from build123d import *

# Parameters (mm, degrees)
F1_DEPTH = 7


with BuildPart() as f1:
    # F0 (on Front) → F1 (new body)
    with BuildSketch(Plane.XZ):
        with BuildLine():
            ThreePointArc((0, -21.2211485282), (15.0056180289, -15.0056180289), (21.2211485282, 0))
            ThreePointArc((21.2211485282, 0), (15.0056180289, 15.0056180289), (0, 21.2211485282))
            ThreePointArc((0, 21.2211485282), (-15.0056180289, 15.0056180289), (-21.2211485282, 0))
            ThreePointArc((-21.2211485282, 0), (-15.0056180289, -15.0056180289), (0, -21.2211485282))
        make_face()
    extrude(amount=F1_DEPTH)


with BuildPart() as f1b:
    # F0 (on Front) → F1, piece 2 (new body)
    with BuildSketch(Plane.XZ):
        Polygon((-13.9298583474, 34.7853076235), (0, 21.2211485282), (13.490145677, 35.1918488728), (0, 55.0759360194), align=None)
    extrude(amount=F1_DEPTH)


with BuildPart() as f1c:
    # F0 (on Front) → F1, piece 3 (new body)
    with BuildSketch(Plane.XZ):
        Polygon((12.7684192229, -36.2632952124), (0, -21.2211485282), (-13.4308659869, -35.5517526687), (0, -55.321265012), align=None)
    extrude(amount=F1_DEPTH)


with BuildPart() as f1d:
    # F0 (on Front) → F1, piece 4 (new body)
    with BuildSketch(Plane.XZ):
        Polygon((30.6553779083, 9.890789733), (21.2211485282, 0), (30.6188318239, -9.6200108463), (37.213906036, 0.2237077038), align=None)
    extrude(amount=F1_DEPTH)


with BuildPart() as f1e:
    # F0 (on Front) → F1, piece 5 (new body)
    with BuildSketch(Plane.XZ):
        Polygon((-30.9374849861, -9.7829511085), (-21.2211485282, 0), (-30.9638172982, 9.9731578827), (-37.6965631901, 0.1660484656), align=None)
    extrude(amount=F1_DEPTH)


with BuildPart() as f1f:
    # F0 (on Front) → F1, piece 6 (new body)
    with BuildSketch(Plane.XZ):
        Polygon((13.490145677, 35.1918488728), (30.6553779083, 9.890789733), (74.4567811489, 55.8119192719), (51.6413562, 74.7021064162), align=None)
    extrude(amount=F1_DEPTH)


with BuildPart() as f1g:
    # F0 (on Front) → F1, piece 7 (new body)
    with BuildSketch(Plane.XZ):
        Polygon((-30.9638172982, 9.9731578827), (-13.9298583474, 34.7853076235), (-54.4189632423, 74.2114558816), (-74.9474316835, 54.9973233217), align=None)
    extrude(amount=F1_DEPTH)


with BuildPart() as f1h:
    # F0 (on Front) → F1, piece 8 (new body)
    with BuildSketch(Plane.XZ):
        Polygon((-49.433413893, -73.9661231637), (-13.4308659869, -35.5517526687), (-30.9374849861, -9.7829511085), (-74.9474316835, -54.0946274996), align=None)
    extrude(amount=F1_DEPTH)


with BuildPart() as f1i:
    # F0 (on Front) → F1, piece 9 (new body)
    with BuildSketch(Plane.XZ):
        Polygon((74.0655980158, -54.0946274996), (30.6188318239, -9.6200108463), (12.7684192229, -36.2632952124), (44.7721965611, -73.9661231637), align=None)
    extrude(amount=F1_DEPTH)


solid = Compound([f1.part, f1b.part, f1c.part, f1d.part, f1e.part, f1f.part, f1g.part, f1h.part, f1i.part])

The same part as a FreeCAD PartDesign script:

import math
import FreeCAD as App
import Part
import Sketcher

doc = App.newDocument("Part")
body = doc.addObject("PartDesign::Body", "Body")

sketch1 = doc.addObject("Sketcher::SketchObject", "Sketch")
body.addObject(sketch1)
sketch1.AttachmentSupport = (doc.XZ_Plane, [""])
sketch1.MapMode = "FlatFace"
sketch1.addGeometry(Part.ArcOfCircle(Part.Circle(App.Vector(0, 0, 0), App.Vector(0, 0, 1), 21), math.radians(-90), math.radians(0)), False)
sketch1.addGeometry(Part.ArcOfCircle(Part.Circle(App.Vector(0, 0, 0), App.Vector(0, 0, 1), 21), math.radians(0), math.radians(90)), False)
sketch1.addGeometry(Part.ArcOfCircle(Part.Circle(App.Vector(0, 0, 0), App.Vector(0, 0, 1), 21), math.radians(90), math.radians(180)), False)
sketch1.addGeometry(Part.ArcOfCircle(Part.Circle(App.Vector(0, 0, 0), App.Vector(0, 0, 1), 21), math.radians(180), math.radians(270)), False)
sketch1.addConstraint(Sketcher.Constraint("Tangent", 0, 2, 1, 1))
sketch1.addConstraint(Sketcher.Constraint("Tangent", 1, 2, 2, 1))
sketch1.addConstraint(Sketcher.Constraint("Tangent", 2, 2, 3, 1))
sketch1.addConstraint(Sketcher.Constraint("Tangent", 3, 2, 0, 1))
sketch1.addConstraint(Sketcher.Constraint("Coincident", 0, 3, -1, 1))
sketch1.addConstraint(Sketcher.Constraint("Equal", 0, 1))
sketch1.addConstraint(Sketcher.Constraint("PointOnObject", 0, 2, -1))
sketch1.addConstraint(Sketcher.Constraint("PointOnObject", 1, 2, -2))
sketch1.addConstraint(Sketcher.Constraint("PointOnObject", 2, 2, -1))
sketch1.addConstraint(Sketcher.Constraint("PointOnObject", 3, 2, -2))
sketch1.addConstraint(Sketcher.Constraint("Radius", 0, 21.221149))
pad1 = doc.addObject("PartDesign::Pad", "Pad")
body.addObject(pad1)
pad1.Profile = sketch1
pad1.Length = 7
body2 = doc.addObject("PartDesign::Body", "Body001")

sketch2 = doc.addObject("Sketcher::SketchObject", "Sketch001")
body2.addObject(sketch2)
sketch2.AttachmentSupport = (doc.getObject("XZ_Plane001"), [""])
sketch2.MapMode = "FlatFace"
sketch2.addGeometry(Part.LineSegment(App.Vector(-14, 35, 0), App.Vector(0, 21, 0)), False)
sketch2.addGeometry(Part.LineSegment(App.Vector(0, 21, 0), App.Vector(13, 35, 0)), False)
sketch2.addGeometry(Part.LineSegment(App.Vector(13, 35, 0), App.Vector(0, 55, 0)), False)
sketch2.addGeometry(Part.LineSegment(App.Vector(0, 55, 0), App.Vector(-14, 35, 0)), False)
sketch2.addConstraint(Sketcher.Constraint("Coincident", 0, 2, 1, 1))
sketch2.addConstraint(Sketcher.Constraint("Coincident", 1, 2, 2, 1))
sketch2.addConstraint(Sketcher.Constraint("Coincident", 2, 2, 3, 1))
sketch2.addConstraint(Sketcher.Constraint("Coincident", 3, 2, 0, 1))
sketch2.addConstraint(Sketcher.Constraint("PointOnObject", 0, 2, -2))
sketch2.addConstraint(Sketcher.Constraint("PointOnObject", 2, 2, -2))
sketch2.addConstraint(Sketcher.Constraint("Distance", 3, 24.612))
sketch2.addConstraint(Sketcher.Constraint("DistanceY", 0, 2, 1, 2, 13.9707))
sketch2.addConstraint(Sketcher.Constraint("DistanceY", -1, 1, 0, 2, 21.221149))
sketch2.addConstraint(Sketcher.Constraint("DistanceX", 3, 2, -1, 1, 13.929858))
sketch2.addConstraint(Sketcher.Constraint("DistanceY", 0, 2, 3, 2, 13.564159))
sketch2.addConstraint(Sketcher.Constraint("Distance", 1, 19.420723))
pad2 = doc.addObject("PartDesign::Pad", "Pad001")
body2.addObject(pad2)
pad2.Profile = sketch2
pad2.Length = 7
body3 = doc.addObject("PartDesign::Body", "Body002")

sketch3 = doc.addObject("Sketcher::SketchObject", "Sketch002")
body3.addObject(sketch3)
sketch3.AttachmentSupport = (doc.getObject("XZ_Plane002"), [""])
sketch3.MapMode = "FlatFace"
sketch3.addGeometry(Part.LineSegment(App.Vector(13, -36, 0), App.Vector(0, -21, 0)), False)
sketch3.addGeometry(Part.LineSegment(App.Vector(0, -21, 0), App.Vector(-13, -36, 0)), False)
sketch3.addGeometry(Part.LineSegment(App.Vector(-13, -36, 0), App.Vector(0, -55, 0)), False)
sketch3.addGeometry(Part.LineSegment(App.Vector(0, -55, 0), App.Vector(13, -36, 0)), False)
sketch3.addConstraint(Sketcher.Constraint("Coincident", 0, 2, 1, 1))
sketch3.addConstraint(Sketcher.Constraint("Coincident", 1, 2, 2, 1))
sketch3.addConstraint(Sketcher.Constraint("Coincident", 2, 2, 3, 1))
sketch3.addConstraint(Sketcher.Constraint("Coincident", 3, 2, 0, 1))
sketch3.addConstraint(Sketcher.Constraint("PointOnObject", 0, 2, -2))
sketch3.addConstraint(Sketcher.Constraint("PointOnObject", 2, 2, -2))
sketch3.addConstraint(Sketcher.Constraint("Distance", 1, 19.640631))
sketch3.addConstraint(Sketcher.Constraint("DistanceY", 0, 2, -1, 1, 21.221149))
sketch3.addConstraint(Sketcher.Constraint("DistanceX", -1, 1, 3, 2, 12.768419))
sketch3.addConstraint(Sketcher.Constraint("DistanceY", 2, 2, 3, 2, 19.05797))
sketch3.addConstraint(Sketcher.Constraint("Distance", 0, 19.730654))
sketch3.addConstraint(Sketcher.Constraint("Distance", 2, 23.900246))
pad3 = doc.addObject("PartDesign::Pad", "Pad002")
body3.addObject(pad3)
pad3.Profile = sketch3
pad3.Length = 7
body4 = doc.addObject("PartDesign::Body", "Body003")

sketch4 = doc.addObject("Sketcher::SketchObject", "Sketch003")
body4.addObject(sketch4)
sketch4.AttachmentSupport = (doc.getObject("XZ_Plane003"), [""])
sketch4.MapMode = "FlatFace"
sketch4.addGeometry(Part.LineSegment(App.Vector(31, 10, 0), App.Vector(21, 0, 0)), False)
sketch4.addGeometry(Part.LineSegment(App.Vector(21, 0, 0), App.Vector(31, -10, 0)), False)
sketch4.addGeometry(Part.LineSegment(App.Vector(31, -10, 0), App.Vector(37, 0, 0)), False)
sketch4.addGeometry(Part.LineSegment(App.Vector(37, 0, 0), App.Vector(31, 10, 0)), False)
sketch4.addConstraint(Sketcher.Constraint("Coincident", 0, 2, 1, 1))
sketch4.addConstraint(Sketcher.Constraint("Coincident", 1, 2, 2, 1))
sketch4.addConstraint(Sketcher.Constraint("Coincident", 2, 2, 3, 1))
sketch4.addConstraint(Sketcher.Constraint("Coincident", 3, 2, 0, 1))
sketch4.addConstraint(Sketcher.Constraint("PointOnObject", 0, 2, -1))
sketch4.addConstraint(Sketcher.Constraint("Distance", 3, 11.681899))
sketch4.addConstraint(Sketcher.Constraint("DistanceY", 1, 2, 3, 2, 19.510801))
sketch4.addConstraint(Sketcher.Constraint("Distance", 1, 13.448459))
sketch4.addConstraint(Sketcher.Constraint("Distance", 2, 11.848789))
sketch4.addConstraint(Sketcher.Constraint("DistanceX", -1, 1, 0, 2, 21.221149))
sketch4.addConstraint(Sketcher.Constraint("DistanceX", -1, 1, 1, 2, 30.618832))
sketch4.addConstraint(Sketcher.Constraint("DistanceY", 1, 2, 2, 2, 9.843719))
pad4 = doc.addObject("PartDesign::Pad", "Pad003")
body4.addObject(pad4)
pad4.Profile = sketch4
pad4.Length = 7
body5 = doc.addObject("PartDesign::Body", "Body004")

sketch5 = doc.addObject("Sketcher::SketchObject", "Sketch004")
body5.addObject(sketch5)
sketch5.AttachmentSupport = (doc.getObject("XZ_Plane004"), [""])
sketch5.MapMode = "FlatFace"
sketch5.addGeometry(Part.LineSegment(App.Vector(-31, -10, 0), App.Vector(-21, 0, 0)), False)
sketch5.addGeometry(Part.LineSegment(App.Vector(-21, 0, 0), App.Vector(-31, 10, 0)), False)
sketch5.addGeometry(Part.LineSegment(App.Vector(-31, 10, 0), App.Vector(-38, 0, 0)), False)
sketch5.addGeometry(Part.LineSegment(App.Vector(-38, 0, 0), App.Vector(-31, -10, 0)), False)
sketch5.addConstraint(Sketcher.Constraint("Coincident", 0, 2, 1, 1))
sketch5.addConstraint(Sketcher.Constraint("Coincident", 1, 2, 2, 1))
sketch5.addConstraint(Sketcher.Constraint("Coincident", 2, 2, 3, 1))
sketch5.addConstraint(Sketcher.Constraint("Coincident", 3, 2, 0, 1))
sketch5.addConstraint(Sketcher.Constraint("PointOnObject", 0, 2, -1))
sketch5.addConstraint(Sketcher.Constraint("DistanceY", 3, 2, 2, 2, 9.949))
sketch5.addConstraint(Sketcher.Constraint("Distance", 0, 13.788159))
sketch5.addConstraint(Sketcher.Constraint("Distance", 3, 12.02779))
sketch5.addConstraint(Sketcher.Constraint("DistanceX", 0, 2, -1, 1, 21.221149))
sketch5.addConstraint(Sketcher.Constraint("DistanceY", -1, 1, 2, 2, 0.166048))
sketch5.addConstraint(Sketcher.Constraint("DistanceX", 1, 2, 0, 2, 9.742669))
sketch5.addConstraint(Sketcher.Constraint("DistanceY", 2, 2, 1, 2, 9.807109))
pad5 = doc.addObject("PartDesign::Pad", "Pad004")
body5.addObject(pad5)
pad5.Profile = sketch5
pad5.Length = 7
body6 = doc.addObject("PartDesign::Body", "Body005")

sketch6 = doc.addObject("Sketcher::SketchObject", "Sketch005")
body6.addObject(sketch6)
sketch6.AttachmentSupport = (doc.getObject("XZ_Plane005"), [""])
sketch6.MapMode = "FlatFace"
sketch6.addGeometry(Part.LineSegment(App.Vector(13, 35, 0), App.Vector(31, 10, 0)), False)
sketch6.addGeometry(Part.LineSegment(App.Vector(31, 10, 0), App.Vector(74, 56, 0)), False)
sketch6.addGeometry(Part.LineSegment(App.Vector(74, 56, 0), App.Vector(52, 75, 0)), False)
sketch6.addGeometry(Part.LineSegment(App.Vector(52, 75, 0), App.Vector(13, 35, 0)), False)
sketch6.addConstraint(Sketcher.Constraint("Coincident", 0, 2, 1, 1))
sketch6.addConstraint(Sketcher.Constraint("Coincident", 1, 2, 2, 1))
sketch6.addConstraint(Sketcher.Constraint("Coincident", 2, 2, 3, 1))
sketch6.addConstraint(Sketcher.Constraint("Coincident", 3, 2, 0, 1))
sketch6.addConstraint(Sketcher.Constraint("Distance", 3, 54.923359))
sketch6.addConstraint(Sketcher.Constraint("DistanceY", -1, 1, 0, 2, 9.89079))
sketch6.addConstraint(Sketcher.Constraint("DistanceX", -1, 1, 1, 2, 74.456781))
sketch6.addConstraint(Sketcher.Constraint("DistanceY", -1, 1, 1, 2, 55.811919))
sketch6.addConstraint(Sketcher.Constraint("DistanceY", -1, 1, 3, 2, 35.191849))
sketch6.addConstraint(Sketcher.Constraint("DistanceX", 0, 2, 2, 2, 20.985978))
sketch6.addConstraint(Sketcher.Constraint("DistanceX", 3, 2, 2, 2, 38.151211))
sketch6.addConstraint(Sketcher.Constraint("Distance", 1, 63.461115))
pad6 = doc.addObject("PartDesign::Pad", "Pad005")
body6.addObject(pad6)
pad6.Profile = sketch6
pad6.Length = 7
body7 = doc.addObject("PartDesign::Body", "Body006")

sketch7 = doc.addObject("Sketcher::SketchObject", "Sketch006")
body7.addObject(sketch7)
sketch7.AttachmentSupport = (doc.getObject("XZ_Plane006"), [""])
sketch7.MapMode = "FlatFace"
sketch7.addGeometry(Part.LineSegment(App.Vector(-31, 10, 0), App.Vector(-14, 35, 0)), False)
sketch7.addGeometry(Part.LineSegment(App.Vector(-14, 35, 0), App.Vector(-54, 74, 0)), False)
sketch7.addGeometry(Part.LineSegment(App.Vector(-54, 74, 0), App.Vector(-75, 55, 0)), False)
sketch7.addGeometry(Part.LineSegment(App.Vector(-75, 55, 0), App.Vector(-31, 10, 0)), False)
sketch7.addConstraint(Sketcher.Constraint("Coincident", 0, 2, 1, 1))
sketch7.addConstraint(Sketcher.Constraint("Coincident", 1, 2, 2, 1))
sketch7.addConstraint(Sketcher.Constraint("Coincident", 2, 2, 3, 1))
sketch7.addConstraint(Sketcher.Constraint("Coincident", 3, 2, 0, 1))
sketch7.addConstraint(Sketcher.Constraint("DistanceX", 0, 2, -1, 1, 13.929858))
sketch7.addConstraint(Sketcher.Constraint("DistanceX", 2, 2, -1, 1, 74.947432))
sketch7.addConstraint(Sketcher.Constraint("DistanceY", 0, 2, 1, 2, 39.426148))
sketch7.addConstraint(Sketcher.Constraint("DistanceX", 2, 2, 1, 2, 20.528468))
sketch7.addConstraint(Sketcher.Constraint("DistanceX", 3, 2, 0, 2, 17.033959))
sketch7.addConstraint(Sketcher.Constraint("DistanceY", 3, 2, 0, 2, 24.81215))
sketch7.addConstraint(Sketcher.Constraint("Distance", 2, 28.117626))
sketch7.addConstraint(Sketcher.Constraint("DistanceY", -1, 1, 0, 2, 34.785308))
pad7 = doc.addObject("PartDesign::Pad", "Pad006")
body7.addObject(pad7)
pad7.Profile = sketch7
pad7.Length = 7
body8 = doc.addObject("PartDesign::Body", "Body007")

sketch8 = doc.addObject("Sketcher::SketchObject", "Sketch007")
body8.addObject(sketch8)
sketch8.AttachmentSupport = (doc.getObject("XZ_Plane007"), [""])
sketch8.MapMode = "FlatFace"
sketch8.addGeometry(Part.LineSegment(App.Vector(-49, -74, 0), App.Vector(-13, -36, 0)), False)
sketch8.addGeometry(Part.LineSegment(App.Vector(-13, -36, 0), App.Vector(-31, -10, 0)), False)
sketch8.addGeometry(Part.LineSegment(App.Vector(-31, -10, 0), App.Vector(-75, -54, 0)), False)
sketch8.addGeometry(Part.LineSegment(App.Vector(-75, -54, 0), App.Vector(-49, -74, 0)), False)
sketch8.addConstraint(Sketcher.Constraint("Coincident", 0, 2, 1, 1))
sketch8.addConstraint(Sketcher.Constraint("Coincident", 1, 2, 2, 1))
sketch8.addConstraint(Sketcher.Constraint("Coincident", 2, 2, 3, 1))
sketch8.addConstraint(Sketcher.Constraint("Coincident", 3, 2, 0, 1))
sketch8.addConstraint(Sketcher.Constraint("DistanceY", 0, 2, 1, 2, 25.768802))
sketch8.addConstraint(Sketcher.Constraint("Distance", 3, 32.339472))
sketch8.addConstraint(Sketcher.Constraint("DistanceY", 1, 2, -1, 1, 9.782951))
sketch8.addConstraint(Sketcher.Constraint("DistanceX", 2, 2, -1, 1, 74.947432))
sketch8.addConstraint(Sketcher.Constraint("DistanceX", 1, 2, 0, 2, 17.506619))
sketch8.addConstraint(Sketcher.Constraint("DistanceY", 3, 2, 0, 2, 38.41437))
sketch8.addConstraint(Sketcher.Constraint("DistanceX", 3, 2, 1, 2, 18.495929))
sketch8.addConstraint(Sketcher.Constraint("Distance", 2, 62.453183))
pad8 = doc.addObject("PartDesign::Pad", "Pad007")
body8.addObject(pad8)
pad8.Profile = sketch8
pad8.Length = 7
body9 = doc.addObject("PartDesign::Body", "Body008")

sketch9 = doc.addObject("Sketcher::SketchObject", "Sketch008")
body9.addObject(sketch9)
sketch9.AttachmentSupport = (doc.getObject("XZ_Plane008"), [""])
sketch9.MapMode = "FlatFace"
sketch9.addGeometry(Part.LineSegment(App.Vector(74, -54, 0), App.Vector(31, -10, 0)), False)
sketch9.addGeometry(Part.LineSegment(App.Vector(31, -10, 0), App.Vector(13, -36, 0)), False)
sketch9.addGeometry(Part.LineSegment(App.Vector(13, -36, 0), App.Vector(45, -74, 0)), False)
sketch9.addGeometry(Part.LineSegment(App.Vector(45, -74, 0), App.Vector(74, -54, 0)), False)
sketch9.addConstraint(Sketcher.Constraint("Coincident", 0, 2, 1, 1))
sketch9.addConstraint(Sketcher.Constraint("Coincident", 1, 2, 2, 1))
sketch9.addConstraint(Sketcher.Constraint("Coincident", 2, 2, 3, 1))
sketch9.addConstraint(Sketcher.Constraint("Coincident", 3, 2, 0, 1))
sketch9.addConstraint(Sketcher.Constraint("DistanceX", -1, 1, 3, 2, 74.065598))
sketch9.addConstraint(Sketcher.Constraint("DistanceX", 2, 2, 3, 2, 29.293401))
sketch9.addConstraint(Sketcher.Constraint("DistanceX", -1, 1, 0, 2, 30.618832))
sketch9.addConstraint(Sketcher.Constraint("DistanceY", 0, 2, -1, 1, 9.620011))
sketch9.addConstraint(Sketcher.Constraint("DistanceX", -1, 1, 1, 2, 12.768419))
sketch9.addConstraint(Sketcher.Constraint("Distance", 0, 62.174054))
sketch9.addConstraint(Sketcher.Constraint("Distance", 1, 32.070264))
sketch9.addConstraint(Sketcher.Constraint("Distance", 2, 49.454474))
pad9 = doc.addObject("PartDesign::Pad", "Pad008")
body9.addObject(pad9)
pad9.Profile = sketch9
pad9.Length = 7

doc.recompute()
